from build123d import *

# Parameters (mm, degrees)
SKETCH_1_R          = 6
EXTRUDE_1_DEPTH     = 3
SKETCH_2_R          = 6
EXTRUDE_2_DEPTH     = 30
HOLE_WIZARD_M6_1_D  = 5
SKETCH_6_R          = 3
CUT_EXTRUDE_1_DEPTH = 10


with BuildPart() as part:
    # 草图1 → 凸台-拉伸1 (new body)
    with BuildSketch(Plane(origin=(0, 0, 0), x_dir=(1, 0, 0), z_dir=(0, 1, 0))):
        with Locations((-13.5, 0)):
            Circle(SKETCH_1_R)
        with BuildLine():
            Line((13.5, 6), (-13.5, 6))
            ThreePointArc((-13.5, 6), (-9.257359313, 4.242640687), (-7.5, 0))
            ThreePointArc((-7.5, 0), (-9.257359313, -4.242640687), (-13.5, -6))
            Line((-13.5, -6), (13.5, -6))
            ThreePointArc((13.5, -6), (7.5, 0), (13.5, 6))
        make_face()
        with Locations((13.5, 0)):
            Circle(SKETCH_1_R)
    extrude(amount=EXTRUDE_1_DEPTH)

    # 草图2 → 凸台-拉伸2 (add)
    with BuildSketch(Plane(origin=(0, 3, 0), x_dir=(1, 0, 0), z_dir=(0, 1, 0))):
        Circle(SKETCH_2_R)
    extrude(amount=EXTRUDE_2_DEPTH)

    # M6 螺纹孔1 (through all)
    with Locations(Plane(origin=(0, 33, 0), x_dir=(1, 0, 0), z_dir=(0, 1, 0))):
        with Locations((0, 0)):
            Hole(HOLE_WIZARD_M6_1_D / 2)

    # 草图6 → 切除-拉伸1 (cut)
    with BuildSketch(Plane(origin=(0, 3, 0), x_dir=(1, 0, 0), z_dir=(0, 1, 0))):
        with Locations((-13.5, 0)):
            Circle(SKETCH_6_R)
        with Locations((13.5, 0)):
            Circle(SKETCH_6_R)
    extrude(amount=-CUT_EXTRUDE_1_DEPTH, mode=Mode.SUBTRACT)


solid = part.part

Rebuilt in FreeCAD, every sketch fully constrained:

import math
import FreeCAD as App
import Part
import Sketcher
from FreeCAD import Vector
Q = App.Units.Quantity

doc = App.newDocument("Part")
body = doc.addObject("PartDesign::Body", "Body")

# Sketch on XZ plane
sketch1 = body.newObject("Sketcher::SketchObject", "Sketch")
sketch1.AttachmentSupport = (doc.getObject("XZ_Plane"), [""])
sketch1.MapMode = "FlatFace"
sketch1.addGeometry([
    Part.ArcOfCircle(Part.Circle(Vector(-13.5, 0, 0), Vector(0, 0, 1), 6), math.radians(90), math.radians(270)),
    Part.LineSegment(Vector(-13.5, 6, 0), Vector(13.5, 6, 0)),
    Part.ArcOfCircle(Part.Circle(Vector(13.5, 0, 0), Vector(0, 0, 1), 6), math.radians(-90), math.radians(90)),
    Part.LineSegment(Vector(13.5, -6, 0), Vector(-13.5, -6, 0)),
], False)
sketch1.addConstraint([
    Sketcher.Constraint("Tangent", 0, 1, 1, 1),
    Sketcher.Constraint("Tangent", 1, 2, 2, 2),
    Sketcher.Constraint("Tangent", 2, 1, 3, 1),
    Sketcher.Constraint("Tangent", 3, 2, 0, 2),
    Sketcher.Constraint("Horizontal", 1),
    Sketcher.Constraint("Horizontal", 3),
    Sketcher.Constraint("Symmetric", 0, 3, 2, 3, -1, 1),
    Sketcher.Constraint("Radius", 0, Q("6 mm")),
    Sketcher.Constraint("DistanceX", 1, 1, 1, 2, Q("27 mm")),
])
pad1 = body.newObject("PartDesign::Pad", "Pad")
pad1.Profile = sketch1
pad1.Length = 3
pad1.Reversed = True

# Sketch on XZ plane
sketch2 = body.newObject("Sketcher::SketchObject", "Sketch001")
sketch2.AttachmentSupport = (doc.getObject("XZ_Plane"), [""])
sketch2.MapMode = "FlatFace"
sketch2.AttachmentOffset = App.Placement(Vector(0, 0, -3), App.Rotation())
sketch2.addGeometry(Part.Circle(Vector(0, 0, 0), Vector(0, 0, 1), 6), False)
sketch2.addConstraint([
    Sketcher.Constraint("Coincident", 0, 3, -1, 1),
    Sketcher.Constraint("Diameter", 0, Q("12 mm")),
])
pad2 = body.newObject("PartDesign::Pad", "Pad001")
pad2.Profile = sketch2
pad2.Length = 30
pad2.Reversed = True

# Sketch on XZ plane
sketch3 = body.newObject("Sketcher::SketchObject", "Sketch002")
sketch3.AttachmentSupport = (doc.getObject("XZ_Plane"), [""])
sketch3.MapMode = "FlatFace"
sketch3.AttachmentOffset = App.Placement(Vector(0, 0, -33), App.Rotation())
sketch3.addGeometry(Part.Circle(Vector(0, 0, 0), Vector(0, 0, 1), 2.5), False)
sketch3.addConstraint([
    Sketcher.Constraint("Coincident", 0, 3, -1, 1),
    Sketcher.Constraint("Diameter", 0, Q("5 mm")),
])
doc.recompute()
hole = body.newObject("PartDesign::Hole", "Hole")
hole.Profile = sketch3
hole.ThreadType = "None"
hole.Diameter = 5
hole.DepthType = "ThroughAll"
hole.Reversed = True

# Sketch on XZ plane
sketch4 = body.newObject("Sketcher::SketchObject", "Sketch003")
sketch4.AttachmentSupport = (doc.getObject("XZ_Plane"), [""])
sketch4.MapMode = "FlatFace"
sketch4.AttachmentOffset = App.Placement(Vector(0, 0, -3), App.Rotation())
sketch4.addGeometry([
    Part.Circle(Vector(-13.5, 0, 0), Vector(0, 0, 1), 3),
    Part.Circle(Vector(13.5, 0, 0), Vector(0, 0, 1), 3),
], False)
sketch4.addConstraint([
    Sketcher.Constraint("Equal", 0, 1),
    Sketcher.Constraint("Symmetric", 0, 3, 1, 3, -1, 1),
    Sketcher.Constraint("PointOnObject", 0, 3, -1),
    Sketcher.Constraint("Diameter", 0, Q("6 mm")),
    Sketcher.Constraint("DistanceX", 0, 3, 1, 3, Q("27 mm")),
])
pocket1 = body.newObject("PartDesign::Pocket", "Pocket")
pocket1.Profile = sketch4
pocket1.Length = 10
pocket1.Reversed = True

doc.recompute()
